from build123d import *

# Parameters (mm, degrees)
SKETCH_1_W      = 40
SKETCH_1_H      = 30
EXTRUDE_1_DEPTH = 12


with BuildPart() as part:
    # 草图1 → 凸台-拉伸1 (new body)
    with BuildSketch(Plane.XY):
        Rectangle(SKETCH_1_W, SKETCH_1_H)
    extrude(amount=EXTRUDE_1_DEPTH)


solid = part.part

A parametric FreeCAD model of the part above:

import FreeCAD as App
import Part
import Sketcher

V = App.Vector
Q = App.Units.Quantity


def add_polygon(sketch, points):
    """Adds a closed chain of lines whose ends are joined by coincident constraints."""
    first, n = sketch.GeometryCount, len(points)
    for a, b in zip(points, points[1:] + points[:1]):
        sketch.addGeometry(Part.LineSegment(App.Vector(*a, 0), App.Vector(*b, 0)), False)
    for i in range(n):
        sketch.addConstraint(Sketcher.Constraint("Coincident", first + i, 2, first + (i + 1) % n, 1))

doc = App.newDocument("Part")
body = doc.addObject("PartDesign::Body", "Body")

sketch1 = body.newObject("Sketcher::SketchObject", "Sketch")
sketch1.AttachmentSupport = (doc.getObject("XY_Plane"), [""])
sketch1.MapMode = "FlatFace"
add_polygon(sketch1, [(-20, 15), (-20, -15), (20, -15), (20, 15)])
sketch1.addConstraint([
    Sketcher.Constraint("Vertical", 0),
    Sketcher.Constraint("Horizontal", 1),
    Sketcher.Constraint("Vertical", 2),
    Sketcher.Constraint("Horizontal", 3),
    Sketcher.Constraint("Symmetric", 0, 2, 2, 2, -1, 1),
    Sketcher.Constraint("DistanceX", 1, 1, 1, 2, Q("40 mm")),
    Sketcher.Constraint("DistanceY", 0, 2, 0, 1, Q("30 mm")),
])
pad1 = body.newObject("PartDesign::Pad", "Pad")
pad1.Profile = sketch1
pad1.Length = 12

doc.recompute()
